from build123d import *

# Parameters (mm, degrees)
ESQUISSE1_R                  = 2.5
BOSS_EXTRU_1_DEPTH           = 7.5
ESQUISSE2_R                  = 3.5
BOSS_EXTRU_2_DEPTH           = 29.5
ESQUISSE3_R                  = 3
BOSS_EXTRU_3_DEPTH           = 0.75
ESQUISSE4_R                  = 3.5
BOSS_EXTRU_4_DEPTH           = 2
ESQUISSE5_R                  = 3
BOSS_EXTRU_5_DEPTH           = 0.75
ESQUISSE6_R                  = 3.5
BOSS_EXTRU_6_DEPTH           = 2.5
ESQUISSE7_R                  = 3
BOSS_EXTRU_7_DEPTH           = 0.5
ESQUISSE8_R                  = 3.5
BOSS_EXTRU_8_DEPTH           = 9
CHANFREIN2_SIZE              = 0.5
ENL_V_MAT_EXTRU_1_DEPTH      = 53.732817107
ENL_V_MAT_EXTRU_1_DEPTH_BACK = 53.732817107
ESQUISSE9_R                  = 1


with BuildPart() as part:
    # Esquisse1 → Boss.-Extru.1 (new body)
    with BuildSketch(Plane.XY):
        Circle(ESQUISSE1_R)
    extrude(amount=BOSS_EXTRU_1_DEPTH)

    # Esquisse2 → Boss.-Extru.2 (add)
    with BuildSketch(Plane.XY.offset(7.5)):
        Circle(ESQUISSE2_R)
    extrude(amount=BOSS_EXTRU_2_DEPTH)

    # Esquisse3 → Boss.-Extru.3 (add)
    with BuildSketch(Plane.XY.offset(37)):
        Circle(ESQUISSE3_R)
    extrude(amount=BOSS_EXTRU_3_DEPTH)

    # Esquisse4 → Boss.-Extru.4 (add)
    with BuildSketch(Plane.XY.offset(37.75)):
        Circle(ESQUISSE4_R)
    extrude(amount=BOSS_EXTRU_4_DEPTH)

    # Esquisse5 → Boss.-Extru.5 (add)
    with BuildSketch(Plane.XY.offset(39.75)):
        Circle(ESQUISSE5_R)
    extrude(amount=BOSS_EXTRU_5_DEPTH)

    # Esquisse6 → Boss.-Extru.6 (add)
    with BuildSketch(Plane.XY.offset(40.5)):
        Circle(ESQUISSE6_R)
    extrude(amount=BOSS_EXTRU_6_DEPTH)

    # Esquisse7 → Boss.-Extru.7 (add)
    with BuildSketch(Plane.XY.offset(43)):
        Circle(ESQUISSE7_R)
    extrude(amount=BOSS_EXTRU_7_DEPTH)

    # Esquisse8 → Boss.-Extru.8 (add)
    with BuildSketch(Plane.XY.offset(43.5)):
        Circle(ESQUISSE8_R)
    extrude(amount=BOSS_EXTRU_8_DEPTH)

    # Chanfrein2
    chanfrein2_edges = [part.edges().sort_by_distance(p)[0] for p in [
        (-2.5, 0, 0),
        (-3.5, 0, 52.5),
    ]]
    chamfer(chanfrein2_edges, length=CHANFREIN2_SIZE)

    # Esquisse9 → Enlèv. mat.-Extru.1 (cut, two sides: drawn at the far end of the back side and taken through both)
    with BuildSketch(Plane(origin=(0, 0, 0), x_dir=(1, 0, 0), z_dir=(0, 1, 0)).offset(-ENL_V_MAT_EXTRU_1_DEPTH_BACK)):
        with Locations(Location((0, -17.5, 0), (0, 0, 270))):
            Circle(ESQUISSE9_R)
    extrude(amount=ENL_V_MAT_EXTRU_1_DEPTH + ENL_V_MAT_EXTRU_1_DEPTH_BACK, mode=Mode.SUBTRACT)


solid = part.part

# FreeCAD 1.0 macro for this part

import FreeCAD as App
import Part
import Sketcher

V = App.Vector


def edges_at(feature, points):
    """Names of the edges that pass closest to the given points."""
    edges = feature.Shape.Edges
    near = lambda p: min(range(len(edges)), key=lambda i: edges[i].distToShape(Part.Vertex(*p))[0])
    return sorted({f"Edge{near(p) + 1}" for p in points})

doc = App.newDocument("Part")
body = doc.addObject("PartDesign::Body", "Body")

sketch1 = body.newObject("Sketcher::SketchObject", "Sketch")
sketch1.AttachmentSupport = (doc.getObject("XY_Plane"), [""])
sketch1.MapMode = "FlatFace"
sketch1.addGeometry(Part.Circle(V(0, 0, 0), V(0, 0, 1), 2.5), False)
sketch1.addConstraint([
    Sketcher.Constraint("Coincident", 0, 3, -1, 1),
    Sketcher.Constraint("Diameter", 0, 5.0),
])
pad1 = body.newObject("PartDesign::Pad", "Pad")
pad1.Profile = sketch1
pad1.Length = 7.5

sketch2 = body.newObject("Sketcher::SketchObject", "Sketch001")
sketch2.AttachmentSupport = (doc.getObject("XY_Plane"), [""])
sketch2.MapMode = "FlatFace"
sketch2.AttachmentOffset = App.Placement(V(0, 0, 7.5), App.Rotation())
sketch2.addGeometry(Part.Circle(V(0, 0, 0), V(0, 0, 1), 3.5), False)
sketch2.addConstraint([
    Sketcher.Constraint("Coincident", 0, 3, -1, 1),
    Sketcher.Constraint("Diameter", 0, 7.0),
])
pad2 = body.newObject("PartDesign::Pad", "Pad001")
pad2.Profile = sketch2
pad2.Length = 29.5

sketch3 = body.newObject("Sketcher::SketchObject", "Sketch002")
sketch3.AttachmentSupport = (doc.getObject("XY_Plane"), [""])
sketch3.MapMode = "FlatFace"
sketch3.AttachmentOffset = App.Placement(V(0, 0, 37), App.Rotation())
sketch3.addGeometry(Part.Circle(V(0, 0, 0), V(0, 0, 1), 3), False)
sketch3.addConstraint([
    Sketcher.Constraint("Coincident", 0, 3, -1, 1),
    Sketcher.Constraint("Diameter", 0, 6.0),
])
pad3 = body.newObject("PartDesign::Pad", "Pad002")
pad3.Profile = sketch3
pad3.Length = 0.75

sketch4 = body.newObject("Sketcher::SketchObject", "Sketch003")
sketch4.AttachmentSupport = (doc.getObject("XY_Plane"), [""])
sketch4.MapMode = "FlatFace"
sketch4.AttachmentOffset = App.Placement(V(0, 0, 37.75), App.Rotation())
sketch4.addGeometry(Part.Circle(V(0, 0, 0), V(0, 0, 1), 3.5), False)
sketch4.addConstraint([
    Sketcher.Constraint("Coincident", 0, 3, -1, 1),
    Sketcher.Constraint("Diameter", 0, 7.0),
])
pad4 = body.newObject("PartDesign::Pad", "Pad003")
pad4.Profile = sketch4
pad4.Length = 2

sketch5 = body.newObject("Sketcher::SketchObject", "Sketch004")
sketch5.AttachmentSupport = (doc.getObject("XY_Plane"), [""])
sketch5.MapMode = "FlatFace"
sketch5.AttachmentOffset = App.Placement(V(0, 0, 39.75), App.Rotation())
sketch5.addGeometry(Part.Circle(V(0, 0, 0), V(0, 0, 1), 3), False)
sketch5.addConstraint([
    Sketcher.Constraint("Coincident", 0, 3, -1, 1),
    Sketcher.Constraint("Diameter", 0, 6.0),
])
pad5 = body.newObject("PartDesign::Pad", "Pad004")
pad5.Profile = sketch5
pad5.Length = 0.75

sketch6 = body.newObject("Sketcher::SketchObject", "Sketch005")
sketch6.AttachmentSupport = (doc.getObject("XY_Plane"), [""])
sketch6.MapMode = "FlatFace"
sketch6.AttachmentOffset = App.Placement(V(0, 0, 40.5), App.Rotation())
sketch6.addGeometry(Part.Circle(V(0, 0, 0), V(0, 0, 1), 3.5), False)
sketch6.addConstraint([
    Sketcher.Constraint("Coincident", 0, 3, -1, 1),
    Sketcher.Constraint("Diameter", 0, 7.0),
])
pad6 = body.newObject("PartDesign::Pad", "Pad005")
pad6.Profile = sketch6
pad6.Length = 2.5

sketch7 = body.newObject("Sketcher::SketchObject", "Sketch006")
sketch7.AttachmentSupport = (doc.getObject("XY_Plane"), [""])
sketch7.MapMode = "FlatFace"
sketch7.AttachmentOffset = App.Placement(V(0, 0, 43), App.Rotation())
sketch7.addGeometry(Part.Circle(V(0, 0, 0), V(0, 0, 1), 3), False)
sketch7.addConstraint([
    Sketcher.Constraint("Coincident", 0, 3, -1, 1),
    Sketcher.Constraint("Diameter", 0, 6.0),
])
pad7 = body.newObject("PartDesign::Pad", "Pad006")
pad7.Profile = sketch7
pad7.Length = 0.5

sketch8 = body.newObject("Sketcher::SketchObject", "Sketch007")
sketch8.AttachmentSupport = (doc.getObject("XY_Plane"), [""])
sketch8.MapMode = "FlatFace"
sketch8.AttachmentOffset = App.Placement(V(0, 0, 43.5), App.Rotation())
sketch8.addGeometry(Part.Circle(V(0, 0, 0), V(0, 0, 1), 3.5), False)
sketch8.addConstraint([
    Sketcher.Constraint("Coincident", 0, 3, -1, 1),
    Sketcher.Constraint("Diameter", 0, 7.0),
])
pad8 = body.newObject("PartDesign::Pad", "Pad007")
pad8.Profile = sketch8
pad8.Length = 9
doc.recompute()

chamfer = body.newObject("PartDesign::Chamfer", "Chamfer")
chamfer.Base = (pad8, edges_at(pad8, [(-2.5, 0, 0), (-3.5, 0, 52.5)]))
chamfer.Size = 0.5

sketch9 = body.newObject("Sketcher::SketchObject", "Sketch008")
sketch9.AttachmentSupport = (doc.getObject("XZ_Plane"), [""])
sketch9.MapMode = "FlatFace"
sketch9.addGeometry(Part.Circle(V(0, 17.5, 0), V(0, 0, 1), 1), False)
sketch9.addConstraint([
    Sketcher.Constraint("PointOnObject", 0, 3, -2),
    Sketcher.Constraint("Diameter", 0, 2.0),
    Sketcher.Constraint("DistanceY", -1, 1, 0, 3, 17.5),
])
pocket1 = body.newObject("PartDesign::Pocket", "Pocket")
pocket1.Profile = sketch9
pocket1.Type = "ThroughAll"
pocket1.Midplane = True

doc.recompute()
